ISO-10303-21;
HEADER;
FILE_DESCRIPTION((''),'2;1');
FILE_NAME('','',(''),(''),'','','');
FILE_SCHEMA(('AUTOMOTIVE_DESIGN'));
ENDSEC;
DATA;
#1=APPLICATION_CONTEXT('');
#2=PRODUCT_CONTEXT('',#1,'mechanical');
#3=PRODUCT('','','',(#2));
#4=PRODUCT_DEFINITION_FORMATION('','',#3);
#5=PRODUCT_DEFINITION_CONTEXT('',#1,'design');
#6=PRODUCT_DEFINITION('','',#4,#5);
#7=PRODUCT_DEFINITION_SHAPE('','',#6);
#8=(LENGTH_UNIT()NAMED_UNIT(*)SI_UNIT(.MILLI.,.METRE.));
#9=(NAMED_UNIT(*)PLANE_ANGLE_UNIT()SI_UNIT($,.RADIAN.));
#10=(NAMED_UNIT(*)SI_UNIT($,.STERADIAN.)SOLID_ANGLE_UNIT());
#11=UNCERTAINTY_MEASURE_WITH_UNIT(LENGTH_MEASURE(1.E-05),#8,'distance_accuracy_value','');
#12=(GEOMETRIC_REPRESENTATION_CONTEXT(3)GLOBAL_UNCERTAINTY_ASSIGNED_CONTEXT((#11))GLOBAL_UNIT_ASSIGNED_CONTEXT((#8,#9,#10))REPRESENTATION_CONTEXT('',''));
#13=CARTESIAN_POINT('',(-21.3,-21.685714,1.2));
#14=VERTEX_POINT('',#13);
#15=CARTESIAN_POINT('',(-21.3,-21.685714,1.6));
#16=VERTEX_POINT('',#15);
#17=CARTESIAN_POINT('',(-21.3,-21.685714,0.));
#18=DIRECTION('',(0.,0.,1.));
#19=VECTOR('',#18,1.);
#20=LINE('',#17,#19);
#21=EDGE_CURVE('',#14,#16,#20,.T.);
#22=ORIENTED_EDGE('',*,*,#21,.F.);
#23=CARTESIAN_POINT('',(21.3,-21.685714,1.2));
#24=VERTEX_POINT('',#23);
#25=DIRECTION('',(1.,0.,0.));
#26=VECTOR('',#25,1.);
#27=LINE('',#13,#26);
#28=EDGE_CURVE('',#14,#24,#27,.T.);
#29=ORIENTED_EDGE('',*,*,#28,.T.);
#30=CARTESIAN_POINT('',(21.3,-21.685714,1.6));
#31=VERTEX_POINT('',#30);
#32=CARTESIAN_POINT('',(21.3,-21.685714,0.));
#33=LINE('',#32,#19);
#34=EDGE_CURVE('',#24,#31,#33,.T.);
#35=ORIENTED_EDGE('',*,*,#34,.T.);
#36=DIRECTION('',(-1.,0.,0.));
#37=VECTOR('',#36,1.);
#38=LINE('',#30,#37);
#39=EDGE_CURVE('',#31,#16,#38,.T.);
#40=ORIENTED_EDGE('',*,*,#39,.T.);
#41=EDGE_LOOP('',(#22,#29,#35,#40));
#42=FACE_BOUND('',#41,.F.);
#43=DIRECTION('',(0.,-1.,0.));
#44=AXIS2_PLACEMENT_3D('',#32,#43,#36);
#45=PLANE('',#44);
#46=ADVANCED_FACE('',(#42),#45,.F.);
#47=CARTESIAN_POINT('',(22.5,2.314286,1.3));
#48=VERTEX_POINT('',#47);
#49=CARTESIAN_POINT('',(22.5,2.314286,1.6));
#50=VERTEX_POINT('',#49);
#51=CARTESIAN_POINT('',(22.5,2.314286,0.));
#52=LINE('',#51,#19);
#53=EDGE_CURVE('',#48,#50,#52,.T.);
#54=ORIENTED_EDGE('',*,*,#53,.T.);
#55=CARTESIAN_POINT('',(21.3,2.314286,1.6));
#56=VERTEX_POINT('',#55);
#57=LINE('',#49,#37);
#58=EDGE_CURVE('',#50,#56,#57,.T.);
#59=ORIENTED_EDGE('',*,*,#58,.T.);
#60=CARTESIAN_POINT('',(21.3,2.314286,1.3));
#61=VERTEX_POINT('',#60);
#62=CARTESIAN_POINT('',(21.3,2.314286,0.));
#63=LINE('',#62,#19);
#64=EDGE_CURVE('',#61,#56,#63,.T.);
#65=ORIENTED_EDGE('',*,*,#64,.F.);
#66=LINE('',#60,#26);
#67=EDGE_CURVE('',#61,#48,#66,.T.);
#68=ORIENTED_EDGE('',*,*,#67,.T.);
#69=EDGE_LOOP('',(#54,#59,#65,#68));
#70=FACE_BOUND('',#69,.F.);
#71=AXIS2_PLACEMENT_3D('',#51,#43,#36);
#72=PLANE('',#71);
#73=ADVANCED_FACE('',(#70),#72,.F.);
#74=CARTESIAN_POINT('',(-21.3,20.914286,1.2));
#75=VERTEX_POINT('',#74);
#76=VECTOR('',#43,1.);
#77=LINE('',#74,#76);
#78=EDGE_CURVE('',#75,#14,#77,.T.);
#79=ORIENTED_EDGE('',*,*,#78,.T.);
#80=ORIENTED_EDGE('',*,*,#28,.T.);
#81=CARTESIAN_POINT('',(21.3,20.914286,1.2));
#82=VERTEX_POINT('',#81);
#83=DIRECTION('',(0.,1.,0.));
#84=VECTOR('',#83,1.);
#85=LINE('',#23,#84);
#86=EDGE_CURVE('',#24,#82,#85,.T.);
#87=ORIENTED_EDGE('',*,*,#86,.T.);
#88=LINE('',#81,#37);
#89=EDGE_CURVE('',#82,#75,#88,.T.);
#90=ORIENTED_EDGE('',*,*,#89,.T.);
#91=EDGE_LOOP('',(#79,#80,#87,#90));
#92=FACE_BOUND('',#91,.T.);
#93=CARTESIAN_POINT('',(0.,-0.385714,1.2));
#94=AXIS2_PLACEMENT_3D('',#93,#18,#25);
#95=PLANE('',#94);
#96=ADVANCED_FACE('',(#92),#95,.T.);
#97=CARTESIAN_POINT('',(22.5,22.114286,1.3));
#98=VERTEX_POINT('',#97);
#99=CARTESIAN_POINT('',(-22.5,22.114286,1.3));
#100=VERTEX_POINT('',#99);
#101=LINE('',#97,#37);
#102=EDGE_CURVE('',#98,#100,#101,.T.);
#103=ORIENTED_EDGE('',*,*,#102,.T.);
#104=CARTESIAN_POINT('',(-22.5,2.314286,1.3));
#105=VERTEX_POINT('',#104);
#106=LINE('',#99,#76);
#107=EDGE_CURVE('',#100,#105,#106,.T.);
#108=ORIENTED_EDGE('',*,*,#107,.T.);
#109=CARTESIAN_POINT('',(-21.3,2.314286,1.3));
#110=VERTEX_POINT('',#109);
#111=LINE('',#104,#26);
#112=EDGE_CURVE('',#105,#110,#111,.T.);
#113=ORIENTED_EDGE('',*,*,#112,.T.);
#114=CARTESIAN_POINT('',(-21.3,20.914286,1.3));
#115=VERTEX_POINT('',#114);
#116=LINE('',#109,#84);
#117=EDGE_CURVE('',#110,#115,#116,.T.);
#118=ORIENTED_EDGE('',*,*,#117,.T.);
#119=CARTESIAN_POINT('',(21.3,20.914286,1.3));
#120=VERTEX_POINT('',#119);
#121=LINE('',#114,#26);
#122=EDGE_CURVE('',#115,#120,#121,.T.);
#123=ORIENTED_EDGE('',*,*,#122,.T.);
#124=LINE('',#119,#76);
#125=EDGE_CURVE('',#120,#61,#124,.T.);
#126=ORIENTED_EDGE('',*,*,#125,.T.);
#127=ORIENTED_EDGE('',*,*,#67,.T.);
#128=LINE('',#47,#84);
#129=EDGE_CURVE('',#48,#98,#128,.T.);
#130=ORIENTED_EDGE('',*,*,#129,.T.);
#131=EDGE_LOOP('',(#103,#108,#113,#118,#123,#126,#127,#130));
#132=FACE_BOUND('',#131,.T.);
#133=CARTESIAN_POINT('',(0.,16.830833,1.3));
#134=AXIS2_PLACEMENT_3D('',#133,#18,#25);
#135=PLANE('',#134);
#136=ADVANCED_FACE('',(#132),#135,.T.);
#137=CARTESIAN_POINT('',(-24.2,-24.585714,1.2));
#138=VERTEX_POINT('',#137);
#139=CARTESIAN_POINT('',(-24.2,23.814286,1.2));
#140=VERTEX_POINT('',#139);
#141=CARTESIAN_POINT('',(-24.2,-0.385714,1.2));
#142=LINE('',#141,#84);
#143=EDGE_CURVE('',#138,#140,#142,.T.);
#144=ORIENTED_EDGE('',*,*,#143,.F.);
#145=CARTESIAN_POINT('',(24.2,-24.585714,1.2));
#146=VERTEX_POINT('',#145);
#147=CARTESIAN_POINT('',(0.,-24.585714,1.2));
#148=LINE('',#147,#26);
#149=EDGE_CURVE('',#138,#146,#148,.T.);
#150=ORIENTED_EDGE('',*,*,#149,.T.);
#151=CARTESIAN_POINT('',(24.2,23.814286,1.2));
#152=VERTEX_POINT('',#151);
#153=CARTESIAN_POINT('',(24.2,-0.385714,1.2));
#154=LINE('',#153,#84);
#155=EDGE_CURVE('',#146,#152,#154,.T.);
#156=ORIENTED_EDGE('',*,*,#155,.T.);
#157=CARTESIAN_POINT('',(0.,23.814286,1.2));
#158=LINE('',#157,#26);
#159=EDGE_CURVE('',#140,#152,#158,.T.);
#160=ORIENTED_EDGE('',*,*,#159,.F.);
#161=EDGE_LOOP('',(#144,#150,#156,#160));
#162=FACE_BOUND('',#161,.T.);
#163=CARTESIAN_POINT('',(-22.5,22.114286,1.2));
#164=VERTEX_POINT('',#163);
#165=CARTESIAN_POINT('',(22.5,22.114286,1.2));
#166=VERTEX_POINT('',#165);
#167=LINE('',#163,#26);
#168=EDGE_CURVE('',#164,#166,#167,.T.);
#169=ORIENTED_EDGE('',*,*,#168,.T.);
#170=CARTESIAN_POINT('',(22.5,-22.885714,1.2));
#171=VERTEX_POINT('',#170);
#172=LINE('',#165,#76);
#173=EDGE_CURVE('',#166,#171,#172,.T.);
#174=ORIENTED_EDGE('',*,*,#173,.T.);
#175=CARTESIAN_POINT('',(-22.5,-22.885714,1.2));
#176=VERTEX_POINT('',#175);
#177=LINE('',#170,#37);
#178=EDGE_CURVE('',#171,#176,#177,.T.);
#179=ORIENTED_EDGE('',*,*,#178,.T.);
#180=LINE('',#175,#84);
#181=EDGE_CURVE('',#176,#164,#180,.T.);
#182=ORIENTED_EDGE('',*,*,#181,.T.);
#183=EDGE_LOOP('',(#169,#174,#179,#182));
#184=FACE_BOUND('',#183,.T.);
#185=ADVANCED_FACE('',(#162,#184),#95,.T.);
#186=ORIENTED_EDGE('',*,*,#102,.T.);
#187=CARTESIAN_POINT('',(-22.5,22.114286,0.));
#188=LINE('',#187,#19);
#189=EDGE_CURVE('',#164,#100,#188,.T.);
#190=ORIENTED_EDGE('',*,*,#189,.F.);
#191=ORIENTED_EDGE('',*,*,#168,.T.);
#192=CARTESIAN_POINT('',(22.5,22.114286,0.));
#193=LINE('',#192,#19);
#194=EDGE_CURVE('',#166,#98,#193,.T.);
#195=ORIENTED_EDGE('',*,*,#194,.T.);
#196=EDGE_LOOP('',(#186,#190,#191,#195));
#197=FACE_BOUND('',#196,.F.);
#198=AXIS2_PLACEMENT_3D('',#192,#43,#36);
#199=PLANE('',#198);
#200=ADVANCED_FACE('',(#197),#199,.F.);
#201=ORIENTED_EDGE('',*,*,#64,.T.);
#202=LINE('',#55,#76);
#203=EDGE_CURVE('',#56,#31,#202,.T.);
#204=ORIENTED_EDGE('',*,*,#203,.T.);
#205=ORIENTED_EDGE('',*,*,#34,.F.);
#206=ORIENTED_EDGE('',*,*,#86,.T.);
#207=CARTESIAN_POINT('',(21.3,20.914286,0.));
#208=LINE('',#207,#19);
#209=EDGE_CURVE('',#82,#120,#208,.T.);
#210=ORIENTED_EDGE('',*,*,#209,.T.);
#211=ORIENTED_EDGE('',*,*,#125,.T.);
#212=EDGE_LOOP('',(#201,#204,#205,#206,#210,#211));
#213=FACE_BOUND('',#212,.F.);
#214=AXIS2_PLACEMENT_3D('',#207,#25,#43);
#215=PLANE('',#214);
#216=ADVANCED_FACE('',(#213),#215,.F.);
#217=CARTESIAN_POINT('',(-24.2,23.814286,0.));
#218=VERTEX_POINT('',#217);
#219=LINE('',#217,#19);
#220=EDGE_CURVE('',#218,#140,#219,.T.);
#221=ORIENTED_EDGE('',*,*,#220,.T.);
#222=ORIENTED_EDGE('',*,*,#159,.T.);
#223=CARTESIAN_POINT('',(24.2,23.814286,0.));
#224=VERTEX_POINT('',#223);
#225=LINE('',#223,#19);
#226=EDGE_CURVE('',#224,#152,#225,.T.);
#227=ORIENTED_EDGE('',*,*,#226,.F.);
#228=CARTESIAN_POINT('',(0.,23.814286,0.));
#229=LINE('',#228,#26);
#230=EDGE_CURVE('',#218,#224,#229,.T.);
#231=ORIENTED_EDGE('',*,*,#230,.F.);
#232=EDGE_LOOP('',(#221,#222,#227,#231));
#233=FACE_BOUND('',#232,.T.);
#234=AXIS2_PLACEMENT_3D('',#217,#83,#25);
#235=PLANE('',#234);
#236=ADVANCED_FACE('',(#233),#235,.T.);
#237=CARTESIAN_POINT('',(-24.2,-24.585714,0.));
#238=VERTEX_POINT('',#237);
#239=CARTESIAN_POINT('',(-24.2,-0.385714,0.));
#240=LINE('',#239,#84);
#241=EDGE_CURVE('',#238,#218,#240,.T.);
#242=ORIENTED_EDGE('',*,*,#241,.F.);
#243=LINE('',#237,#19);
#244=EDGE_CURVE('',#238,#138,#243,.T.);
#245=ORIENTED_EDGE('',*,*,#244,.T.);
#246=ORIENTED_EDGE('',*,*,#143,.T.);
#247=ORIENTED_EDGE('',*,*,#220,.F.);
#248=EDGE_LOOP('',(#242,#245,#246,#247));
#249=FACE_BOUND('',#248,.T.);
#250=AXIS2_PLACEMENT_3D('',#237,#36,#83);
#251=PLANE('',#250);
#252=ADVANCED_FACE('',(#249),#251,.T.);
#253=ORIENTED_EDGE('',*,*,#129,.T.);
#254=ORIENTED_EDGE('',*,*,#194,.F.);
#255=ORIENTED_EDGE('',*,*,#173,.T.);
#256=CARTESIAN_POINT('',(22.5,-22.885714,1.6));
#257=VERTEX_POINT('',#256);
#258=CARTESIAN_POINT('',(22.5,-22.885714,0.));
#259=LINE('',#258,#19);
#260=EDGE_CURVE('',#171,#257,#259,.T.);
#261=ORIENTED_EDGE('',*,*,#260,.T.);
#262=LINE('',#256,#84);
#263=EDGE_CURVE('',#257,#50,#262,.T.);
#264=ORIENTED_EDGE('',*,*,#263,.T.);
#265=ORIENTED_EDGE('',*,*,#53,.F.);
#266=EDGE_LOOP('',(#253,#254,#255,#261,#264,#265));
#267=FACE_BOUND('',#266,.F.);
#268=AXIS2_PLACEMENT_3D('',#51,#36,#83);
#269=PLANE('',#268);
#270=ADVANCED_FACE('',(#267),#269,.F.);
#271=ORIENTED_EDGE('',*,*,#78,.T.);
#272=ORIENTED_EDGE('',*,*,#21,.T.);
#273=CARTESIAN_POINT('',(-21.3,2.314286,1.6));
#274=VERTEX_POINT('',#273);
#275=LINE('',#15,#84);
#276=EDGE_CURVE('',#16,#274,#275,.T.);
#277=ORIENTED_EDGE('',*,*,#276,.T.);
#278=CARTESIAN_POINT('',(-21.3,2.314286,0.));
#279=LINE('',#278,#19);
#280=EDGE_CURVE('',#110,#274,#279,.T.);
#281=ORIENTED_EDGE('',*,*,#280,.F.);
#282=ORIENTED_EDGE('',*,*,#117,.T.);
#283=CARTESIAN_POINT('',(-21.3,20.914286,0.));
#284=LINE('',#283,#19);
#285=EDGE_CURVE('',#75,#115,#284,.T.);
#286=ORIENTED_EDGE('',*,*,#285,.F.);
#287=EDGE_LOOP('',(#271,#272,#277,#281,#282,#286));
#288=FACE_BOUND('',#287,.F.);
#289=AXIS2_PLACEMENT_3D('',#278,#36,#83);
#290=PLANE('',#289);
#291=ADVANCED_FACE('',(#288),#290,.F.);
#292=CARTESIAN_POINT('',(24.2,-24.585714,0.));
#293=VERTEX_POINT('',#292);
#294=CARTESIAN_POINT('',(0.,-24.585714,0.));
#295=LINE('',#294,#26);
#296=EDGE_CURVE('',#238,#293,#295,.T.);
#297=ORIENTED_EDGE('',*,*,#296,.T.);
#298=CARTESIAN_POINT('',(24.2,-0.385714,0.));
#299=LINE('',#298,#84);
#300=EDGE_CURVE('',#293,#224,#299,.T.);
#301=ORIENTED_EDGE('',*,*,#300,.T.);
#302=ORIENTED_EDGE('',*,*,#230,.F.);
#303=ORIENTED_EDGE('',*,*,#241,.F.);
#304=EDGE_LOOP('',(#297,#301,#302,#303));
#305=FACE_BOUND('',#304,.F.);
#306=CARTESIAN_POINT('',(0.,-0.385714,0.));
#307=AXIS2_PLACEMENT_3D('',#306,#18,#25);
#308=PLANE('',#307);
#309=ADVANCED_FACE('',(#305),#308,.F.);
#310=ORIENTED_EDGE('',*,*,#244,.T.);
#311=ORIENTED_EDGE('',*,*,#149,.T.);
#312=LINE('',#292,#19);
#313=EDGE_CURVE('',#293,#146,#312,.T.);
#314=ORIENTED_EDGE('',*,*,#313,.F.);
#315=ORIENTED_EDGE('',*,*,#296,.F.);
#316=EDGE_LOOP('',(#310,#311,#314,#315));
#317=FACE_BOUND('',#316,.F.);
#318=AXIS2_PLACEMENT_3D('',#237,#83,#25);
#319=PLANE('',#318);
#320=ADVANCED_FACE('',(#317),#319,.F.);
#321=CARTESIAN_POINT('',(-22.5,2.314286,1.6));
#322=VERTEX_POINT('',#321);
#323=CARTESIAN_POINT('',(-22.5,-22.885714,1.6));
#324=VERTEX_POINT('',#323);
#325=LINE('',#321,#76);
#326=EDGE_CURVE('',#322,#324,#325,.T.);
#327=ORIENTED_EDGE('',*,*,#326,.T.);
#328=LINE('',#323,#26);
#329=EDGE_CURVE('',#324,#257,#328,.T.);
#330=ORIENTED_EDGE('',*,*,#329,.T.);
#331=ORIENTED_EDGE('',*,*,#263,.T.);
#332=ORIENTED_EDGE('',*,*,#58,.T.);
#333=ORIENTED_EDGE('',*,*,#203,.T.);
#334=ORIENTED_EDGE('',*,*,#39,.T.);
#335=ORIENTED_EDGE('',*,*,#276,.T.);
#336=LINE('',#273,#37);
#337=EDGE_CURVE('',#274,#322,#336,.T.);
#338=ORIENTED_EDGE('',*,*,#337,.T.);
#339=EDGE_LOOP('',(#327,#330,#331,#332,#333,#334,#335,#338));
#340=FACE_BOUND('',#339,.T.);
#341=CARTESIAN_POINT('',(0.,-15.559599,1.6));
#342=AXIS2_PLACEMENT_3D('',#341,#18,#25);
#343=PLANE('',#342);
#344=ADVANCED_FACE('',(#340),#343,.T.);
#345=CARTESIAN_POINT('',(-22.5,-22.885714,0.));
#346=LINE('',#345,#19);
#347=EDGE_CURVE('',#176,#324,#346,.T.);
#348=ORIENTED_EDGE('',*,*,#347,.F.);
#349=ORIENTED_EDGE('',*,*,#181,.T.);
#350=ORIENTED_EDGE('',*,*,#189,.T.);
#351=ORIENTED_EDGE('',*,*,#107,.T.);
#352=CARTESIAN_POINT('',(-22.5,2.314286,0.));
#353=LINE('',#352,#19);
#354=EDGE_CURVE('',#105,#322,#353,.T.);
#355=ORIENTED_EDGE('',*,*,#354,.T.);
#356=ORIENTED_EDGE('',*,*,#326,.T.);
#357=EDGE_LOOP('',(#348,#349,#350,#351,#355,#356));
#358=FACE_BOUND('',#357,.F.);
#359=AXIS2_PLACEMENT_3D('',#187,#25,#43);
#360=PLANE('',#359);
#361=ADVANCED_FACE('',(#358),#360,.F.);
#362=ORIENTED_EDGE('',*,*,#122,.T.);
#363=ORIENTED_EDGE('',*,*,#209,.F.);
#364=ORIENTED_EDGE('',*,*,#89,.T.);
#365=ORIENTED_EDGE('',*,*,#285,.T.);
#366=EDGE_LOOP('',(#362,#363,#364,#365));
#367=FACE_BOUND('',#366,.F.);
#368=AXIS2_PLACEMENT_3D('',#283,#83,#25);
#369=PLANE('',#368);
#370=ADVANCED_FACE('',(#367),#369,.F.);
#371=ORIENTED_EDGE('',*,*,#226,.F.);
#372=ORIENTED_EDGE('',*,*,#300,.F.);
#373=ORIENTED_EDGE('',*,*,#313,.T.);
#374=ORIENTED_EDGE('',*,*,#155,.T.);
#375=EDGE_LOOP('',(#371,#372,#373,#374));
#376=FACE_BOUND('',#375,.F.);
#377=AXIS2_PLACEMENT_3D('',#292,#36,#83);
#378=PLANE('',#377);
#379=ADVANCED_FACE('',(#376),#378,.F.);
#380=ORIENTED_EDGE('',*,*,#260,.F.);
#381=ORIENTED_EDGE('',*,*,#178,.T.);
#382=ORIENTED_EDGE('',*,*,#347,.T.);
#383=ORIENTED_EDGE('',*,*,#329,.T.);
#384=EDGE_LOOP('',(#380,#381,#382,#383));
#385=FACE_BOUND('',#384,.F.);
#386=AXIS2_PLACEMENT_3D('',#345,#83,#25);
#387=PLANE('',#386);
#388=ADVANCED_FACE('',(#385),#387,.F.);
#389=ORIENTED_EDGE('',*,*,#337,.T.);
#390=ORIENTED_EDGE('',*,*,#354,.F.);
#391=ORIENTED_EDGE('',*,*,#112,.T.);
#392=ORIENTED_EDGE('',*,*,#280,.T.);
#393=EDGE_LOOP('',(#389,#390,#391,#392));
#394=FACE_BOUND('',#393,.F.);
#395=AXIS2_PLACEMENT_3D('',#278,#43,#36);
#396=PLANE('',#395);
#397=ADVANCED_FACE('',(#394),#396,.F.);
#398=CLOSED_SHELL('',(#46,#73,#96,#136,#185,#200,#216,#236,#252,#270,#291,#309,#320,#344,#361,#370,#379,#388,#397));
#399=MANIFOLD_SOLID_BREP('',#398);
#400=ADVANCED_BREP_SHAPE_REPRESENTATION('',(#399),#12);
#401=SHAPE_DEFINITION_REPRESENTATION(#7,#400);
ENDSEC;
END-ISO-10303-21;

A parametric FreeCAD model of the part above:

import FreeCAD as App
import Part
import Sketcher
from FreeCAD import Vector


def add_polygon(sketch, points):
    """Adds a closed chain of lines whose ends are joined by coincident constraints."""
    first, n = sketch.GeometryCount, len(points)
    for a, b in zip(points, points[1:] + points[:1]):
        sketch.addGeometry(Part.LineSegment(App.Vector(*a, 0), App.Vector(*b, 0)), False)
    for i in range(n):
        sketch.addConstraint(Sketcher.Constraint("Coincident", first + i, 2, first + (i + 1) % n, 1))

doc = App.newDocument("Part")
body = doc.addObject("PartDesign::Body", "Body")

# Sketch on XY plane
sketch1 = body.newObject("Sketcher::SketchObject", "Sketch")
sketch1.AttachmentSupport = (doc.getObject("XY_Plane"), [""])
sketch1.MapMode = "FlatFace"
add_polygon(sketch1, [(-21.3, 2.3), (-22.5, 2.3), (-22.5, -22.9), (22.5, -22.9), (22.5, 2.3), (21.3, 2.3), (21.3, -21.7), (-21.3, -21.7)])  # lines 0-7
sketch1.addConstraint([
    Sketcher.Constraint("Horizontal", 0),
    Sketcher.Constraint("Vertical", 1),
    Sketcher.Constraint("Horizontal", 2),
    Sketcher.Constraint("Vertical", 3),
    Sketcher.Constraint("Horizontal", 4),
    Sketcher.Constraint("Vertical", 5),
    Sketcher.Constraint("Horizontal", 6),
    Sketcher.Constraint("Vertical", 7),
    Sketcher.Constraint("Symmetric", 0, 2, 3, 2, -2),
    Sketcher.Constraint("Equal", 0, 4),
    Sketcher.Constraint("DistanceX", 2, 1, 2, 2, 45.0),
    Sketcher.Constraint("DistanceY", 5, 2, 5, 1, 24.0),
    Sketcher.Constraint("DistanceX", 0, 2, 0, 1, 1.2),
    Sketcher.Constraint("DistanceY", 1, 2, 1, 1, 25.2),
    Sketcher.Constraint("DistanceY", -1, 1, 0, 2, 2.314286),
])
pad1 = body.newObject("PartDesign::Pad", "Pad")
pad1.Profile = sketch1
pad1.Length = 1.6

# Sketch on XY plane
sketch2 = body.newObject("Sketcher::SketchObject", "Sketch001")
sketch2.AttachmentSupport = (doc.getObject("XY_Plane"), [""])
sketch2.MapMode = "FlatFace"
add_polygon(sketch2, [(22.5, 22.1), (-22.5, 22.1), (-22.5, 2.3), (-21.3, 2.3), (-21.3, 20.9), (21.3, 20.9), (21.3, 2.3), (22.5, 2.3)])  # lines 0-7
sketch2.addConstraint([
    Sketcher.Constraint("Horizontal", 0),
    Sketcher.Constraint("Vertical", 1),
    Sketcher.Constraint("Horizontal", 2),
    Sketcher.Constraint("Vertical", 3),
    Sketcher.Constraint("Horizontal", 4),
    Sketcher.Constraint("Vertical", 5),
    Sketcher.Constraint("Horizontal", 6),
    Sketcher.Constraint("Vertical", 7),
    Sketcher.Constraint("Symmetric", 2, 2, 5, 2, -2),
    Sketcher.Constraint("Equal", 2, 6),
    Sketcher.Constraint("DistanceX", 0, 2, 0, 1, 45.0),
    Sketcher.Constraint("DistanceX", 2, 1, 2, 2, 1.2),
    Sketcher.Constraint("DistanceY", 1, 2, 1, 1, 19.8),
    Sketcher.Constraint("DistanceY", 3, 1, 3, 2, 18.6),
    Sketcher.Constraint("DistanceY", -1, 1, 0, 2, 22.114286),
])
pad2 = body.newObject("PartDesign::Pad", "Pad001")
pad2.Profile = sketch2
pad2.Length = 1.3

# Sketch on XY plane
sketch3 = body.newObject("Sketcher::SketchObject", "Sketch002")
sketch3.AttachmentSupport = (doc.getObject("XY_Plane"), [""])
sketch3.MapMode = "FlatFace"
add_polygon(sketch3, [(-24, 24), (-24, -25), (24, -25), (24, 24)])  # lines 0-3
add_polygon(sketch3, [(-22, -23), (-22, 22), (22, 22), (22, -23)])  # lines 4-7
add_polygon(sketch3, [(-21, 21), (-21, -22), (21, -22), (21, 21)])  # lines 8-11
sketch3.addConstraint([
    Sketcher.Constraint("Vertical", 0),
    Sketcher.Constraint("Horizontal", 1),
    Sketcher.Constraint("Vertical", 2),
    Sketcher.Constraint("Horizontal", 3),
    Sketcher.Constraint("Vertical", 4),
    Sketcher.Constraint("Horizontal", 5),
    Sketcher.Constraint("Vertical", 6),
    Sketcher.Constraint("Horizontal", 7),
    Sketcher.Constraint("Vertical", 8),
    Sketcher.Constraint("Horizontal", 9),
    Sketcher.Constraint("Vertical", 10),
    Sketcher.Constraint("Horizontal", 11),
    Sketcher.Constraint("Equal", 3, 0),
    Sketcher.Constraint("Equal", 7, 4),
    Sketcher.Constraint("Equal", 11, 8),
    Sketcher.Constraint("DistanceX", 5, 1, 5, 2, 45.0),
    Sketcher.Constraint("DistanceX", 1, 1, 1, 2, 48.4),
    Sketcher.Constraint("DistanceX", 9, 1, 9, 2, 42.6),
    Sketcher.Constraint("DistanceX", 0, 2, -1, 1, 24.2),
    Sketcher.Constraint("DistanceX", 4, 2, -1, 1, 22.5),
    Sketcher.Constraint("DistanceX", 8, 2, -1, 1, 21.3),
    Sketcher.Constraint("DistanceY", 4, 2, 3, 2, 1.7),
    Sketcher.Constraint("DistanceY", 7, 2, 8, 2, 1.2),
    Sketcher.Constraint("DistanceY", 0, 2, -1, 1, 24.585714),
])
pad3 = body.newObject("PartDesign::Pad", "Pad002")
pad3.Profile = sketch3
pad3.Length = 1.2

doc.recompute()
